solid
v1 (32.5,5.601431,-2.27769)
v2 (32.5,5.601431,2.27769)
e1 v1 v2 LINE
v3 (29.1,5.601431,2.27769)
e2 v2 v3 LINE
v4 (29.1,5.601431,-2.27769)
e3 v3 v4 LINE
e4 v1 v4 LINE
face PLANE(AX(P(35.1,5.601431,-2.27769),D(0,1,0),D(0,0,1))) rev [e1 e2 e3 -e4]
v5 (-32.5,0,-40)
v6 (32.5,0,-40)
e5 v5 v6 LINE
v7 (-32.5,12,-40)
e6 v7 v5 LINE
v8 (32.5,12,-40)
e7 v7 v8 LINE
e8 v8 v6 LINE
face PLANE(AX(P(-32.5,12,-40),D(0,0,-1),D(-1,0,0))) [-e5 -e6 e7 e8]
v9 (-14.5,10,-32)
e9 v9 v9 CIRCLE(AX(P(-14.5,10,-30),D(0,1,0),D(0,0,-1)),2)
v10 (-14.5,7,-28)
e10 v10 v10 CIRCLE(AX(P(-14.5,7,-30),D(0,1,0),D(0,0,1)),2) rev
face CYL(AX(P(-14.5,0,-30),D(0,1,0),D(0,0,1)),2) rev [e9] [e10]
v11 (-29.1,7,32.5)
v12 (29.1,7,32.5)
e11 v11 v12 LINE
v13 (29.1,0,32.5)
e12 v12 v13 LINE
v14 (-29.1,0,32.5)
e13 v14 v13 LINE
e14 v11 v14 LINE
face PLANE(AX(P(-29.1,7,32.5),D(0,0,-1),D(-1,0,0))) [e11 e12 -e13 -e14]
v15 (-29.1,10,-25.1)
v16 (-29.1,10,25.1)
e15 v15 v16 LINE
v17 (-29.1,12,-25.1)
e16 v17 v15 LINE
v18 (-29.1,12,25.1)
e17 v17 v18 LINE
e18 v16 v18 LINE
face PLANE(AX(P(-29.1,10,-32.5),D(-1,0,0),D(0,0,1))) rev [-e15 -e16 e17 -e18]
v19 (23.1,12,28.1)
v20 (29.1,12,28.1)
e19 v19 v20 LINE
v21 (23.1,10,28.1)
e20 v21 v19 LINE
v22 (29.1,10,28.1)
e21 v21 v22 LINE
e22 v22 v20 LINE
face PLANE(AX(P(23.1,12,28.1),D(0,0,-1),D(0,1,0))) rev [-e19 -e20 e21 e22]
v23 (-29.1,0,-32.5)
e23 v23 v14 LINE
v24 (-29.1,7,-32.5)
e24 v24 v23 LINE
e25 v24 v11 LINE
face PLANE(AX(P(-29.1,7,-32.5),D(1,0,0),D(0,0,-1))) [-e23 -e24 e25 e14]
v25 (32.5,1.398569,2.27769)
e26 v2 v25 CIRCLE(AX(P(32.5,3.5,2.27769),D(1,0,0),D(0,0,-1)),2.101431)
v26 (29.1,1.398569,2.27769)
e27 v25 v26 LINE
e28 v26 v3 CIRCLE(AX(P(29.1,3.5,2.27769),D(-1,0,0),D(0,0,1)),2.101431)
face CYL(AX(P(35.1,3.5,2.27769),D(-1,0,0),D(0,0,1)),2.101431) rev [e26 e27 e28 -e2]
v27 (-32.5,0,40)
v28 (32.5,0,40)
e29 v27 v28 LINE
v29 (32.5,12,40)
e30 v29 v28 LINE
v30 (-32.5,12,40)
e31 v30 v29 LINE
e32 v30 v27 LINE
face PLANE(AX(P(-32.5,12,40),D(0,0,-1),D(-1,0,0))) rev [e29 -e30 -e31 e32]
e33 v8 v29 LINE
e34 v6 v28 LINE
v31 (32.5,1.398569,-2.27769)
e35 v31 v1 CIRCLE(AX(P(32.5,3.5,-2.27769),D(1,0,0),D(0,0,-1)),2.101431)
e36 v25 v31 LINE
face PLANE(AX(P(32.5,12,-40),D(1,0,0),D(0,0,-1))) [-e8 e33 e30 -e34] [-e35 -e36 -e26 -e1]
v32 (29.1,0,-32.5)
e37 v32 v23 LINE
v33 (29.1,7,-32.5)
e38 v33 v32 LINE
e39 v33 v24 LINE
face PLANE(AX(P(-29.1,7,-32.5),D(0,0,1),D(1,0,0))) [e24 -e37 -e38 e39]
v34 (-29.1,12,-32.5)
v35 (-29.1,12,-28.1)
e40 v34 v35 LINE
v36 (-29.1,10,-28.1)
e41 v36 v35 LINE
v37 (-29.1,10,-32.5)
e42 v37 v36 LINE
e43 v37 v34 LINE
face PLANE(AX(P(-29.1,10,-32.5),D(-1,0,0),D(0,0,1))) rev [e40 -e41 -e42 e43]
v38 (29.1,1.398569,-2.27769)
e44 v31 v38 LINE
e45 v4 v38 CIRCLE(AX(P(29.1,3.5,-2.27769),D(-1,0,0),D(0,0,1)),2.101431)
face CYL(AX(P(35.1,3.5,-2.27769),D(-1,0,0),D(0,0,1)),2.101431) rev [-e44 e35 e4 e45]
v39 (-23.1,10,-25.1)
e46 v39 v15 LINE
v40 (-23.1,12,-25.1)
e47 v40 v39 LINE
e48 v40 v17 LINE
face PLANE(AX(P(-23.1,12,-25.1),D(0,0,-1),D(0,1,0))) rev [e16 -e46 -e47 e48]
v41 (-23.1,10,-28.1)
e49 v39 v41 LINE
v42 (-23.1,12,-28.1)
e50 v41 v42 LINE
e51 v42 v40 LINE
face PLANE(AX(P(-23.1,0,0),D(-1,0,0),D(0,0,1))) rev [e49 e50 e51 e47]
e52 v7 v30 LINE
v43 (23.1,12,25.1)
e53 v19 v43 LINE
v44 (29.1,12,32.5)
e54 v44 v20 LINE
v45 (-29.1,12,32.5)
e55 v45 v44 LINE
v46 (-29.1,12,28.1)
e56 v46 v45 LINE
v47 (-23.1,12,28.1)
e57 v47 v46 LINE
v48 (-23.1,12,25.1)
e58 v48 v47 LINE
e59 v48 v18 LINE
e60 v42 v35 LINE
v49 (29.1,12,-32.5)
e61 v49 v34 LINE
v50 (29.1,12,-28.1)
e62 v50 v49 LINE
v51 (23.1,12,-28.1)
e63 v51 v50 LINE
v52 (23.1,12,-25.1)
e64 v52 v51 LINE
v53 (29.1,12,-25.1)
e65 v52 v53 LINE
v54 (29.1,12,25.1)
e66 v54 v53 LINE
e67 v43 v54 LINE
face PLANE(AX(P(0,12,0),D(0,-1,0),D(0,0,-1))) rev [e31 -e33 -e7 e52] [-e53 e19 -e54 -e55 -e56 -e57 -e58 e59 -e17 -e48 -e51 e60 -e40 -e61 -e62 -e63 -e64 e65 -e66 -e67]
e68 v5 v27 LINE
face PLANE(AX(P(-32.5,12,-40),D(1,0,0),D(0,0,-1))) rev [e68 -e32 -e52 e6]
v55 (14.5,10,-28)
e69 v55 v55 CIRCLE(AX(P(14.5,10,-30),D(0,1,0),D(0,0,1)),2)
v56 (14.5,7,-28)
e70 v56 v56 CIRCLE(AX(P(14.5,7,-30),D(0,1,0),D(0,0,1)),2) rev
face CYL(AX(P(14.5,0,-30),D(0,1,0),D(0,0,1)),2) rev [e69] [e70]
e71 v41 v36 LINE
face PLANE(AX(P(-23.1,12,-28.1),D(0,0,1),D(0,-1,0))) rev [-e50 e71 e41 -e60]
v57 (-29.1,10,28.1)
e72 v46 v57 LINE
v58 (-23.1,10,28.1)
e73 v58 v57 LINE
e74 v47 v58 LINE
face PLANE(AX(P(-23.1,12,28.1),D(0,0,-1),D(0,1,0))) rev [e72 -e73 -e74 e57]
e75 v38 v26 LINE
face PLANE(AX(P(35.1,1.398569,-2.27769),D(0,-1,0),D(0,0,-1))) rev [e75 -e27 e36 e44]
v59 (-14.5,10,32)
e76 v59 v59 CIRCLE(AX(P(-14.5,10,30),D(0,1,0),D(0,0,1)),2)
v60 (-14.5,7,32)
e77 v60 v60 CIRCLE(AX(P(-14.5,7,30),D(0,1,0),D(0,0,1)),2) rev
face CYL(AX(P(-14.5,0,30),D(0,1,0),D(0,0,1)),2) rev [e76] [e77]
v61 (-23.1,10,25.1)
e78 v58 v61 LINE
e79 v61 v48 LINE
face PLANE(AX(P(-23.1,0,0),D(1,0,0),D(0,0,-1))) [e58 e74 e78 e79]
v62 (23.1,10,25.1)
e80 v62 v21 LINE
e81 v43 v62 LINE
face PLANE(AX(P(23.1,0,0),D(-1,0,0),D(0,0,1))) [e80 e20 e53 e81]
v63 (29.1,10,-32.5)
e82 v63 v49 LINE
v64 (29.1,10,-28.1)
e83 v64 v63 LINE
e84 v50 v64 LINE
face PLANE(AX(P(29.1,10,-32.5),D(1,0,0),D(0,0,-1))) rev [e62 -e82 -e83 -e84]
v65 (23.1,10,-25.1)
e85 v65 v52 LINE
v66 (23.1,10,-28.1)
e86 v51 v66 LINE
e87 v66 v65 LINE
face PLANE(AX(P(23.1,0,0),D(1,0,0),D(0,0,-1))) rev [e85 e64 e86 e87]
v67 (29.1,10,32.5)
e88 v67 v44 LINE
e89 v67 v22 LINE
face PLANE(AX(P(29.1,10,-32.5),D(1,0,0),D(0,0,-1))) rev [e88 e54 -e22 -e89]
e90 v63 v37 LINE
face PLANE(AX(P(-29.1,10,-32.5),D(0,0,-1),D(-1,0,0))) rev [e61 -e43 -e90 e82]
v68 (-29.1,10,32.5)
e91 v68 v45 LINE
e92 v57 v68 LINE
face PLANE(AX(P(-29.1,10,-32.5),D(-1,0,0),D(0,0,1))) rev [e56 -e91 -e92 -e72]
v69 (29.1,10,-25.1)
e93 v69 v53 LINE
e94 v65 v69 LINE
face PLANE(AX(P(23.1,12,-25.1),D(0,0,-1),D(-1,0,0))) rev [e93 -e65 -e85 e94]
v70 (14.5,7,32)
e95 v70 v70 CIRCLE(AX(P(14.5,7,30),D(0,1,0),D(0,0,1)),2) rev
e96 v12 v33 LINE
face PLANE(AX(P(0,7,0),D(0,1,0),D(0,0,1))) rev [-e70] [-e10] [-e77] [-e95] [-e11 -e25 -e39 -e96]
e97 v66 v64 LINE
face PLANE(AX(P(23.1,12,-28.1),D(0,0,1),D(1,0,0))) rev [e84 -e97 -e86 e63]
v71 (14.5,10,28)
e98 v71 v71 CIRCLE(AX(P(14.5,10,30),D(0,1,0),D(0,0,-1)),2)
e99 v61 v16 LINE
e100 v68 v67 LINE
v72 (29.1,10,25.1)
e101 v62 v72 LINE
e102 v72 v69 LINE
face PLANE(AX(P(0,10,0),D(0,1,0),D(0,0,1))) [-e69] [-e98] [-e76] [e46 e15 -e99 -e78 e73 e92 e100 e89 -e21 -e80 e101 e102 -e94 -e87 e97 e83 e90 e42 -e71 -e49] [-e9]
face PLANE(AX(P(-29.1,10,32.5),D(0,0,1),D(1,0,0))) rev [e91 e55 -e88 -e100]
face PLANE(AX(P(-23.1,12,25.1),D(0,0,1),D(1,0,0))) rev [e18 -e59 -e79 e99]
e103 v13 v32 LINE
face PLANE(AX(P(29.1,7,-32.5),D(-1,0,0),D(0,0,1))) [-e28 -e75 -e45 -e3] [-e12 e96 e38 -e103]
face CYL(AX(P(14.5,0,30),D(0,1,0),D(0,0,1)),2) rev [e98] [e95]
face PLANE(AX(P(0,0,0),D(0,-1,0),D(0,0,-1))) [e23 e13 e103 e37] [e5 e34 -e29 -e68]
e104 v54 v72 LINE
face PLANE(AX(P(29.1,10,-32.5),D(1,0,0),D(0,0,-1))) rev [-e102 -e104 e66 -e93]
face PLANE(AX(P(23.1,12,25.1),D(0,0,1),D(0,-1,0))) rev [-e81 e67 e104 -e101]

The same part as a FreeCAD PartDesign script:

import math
import FreeCAD as App
import Part
import Sketcher

V = App.Vector

doc = App.newDocument("Part")
params = doc.addObject("Spreadsheet::Sheet", "Params")
for row, (alias, value) in enumerate([
    ("sketch1_width", "65 mm"),
    ("sketch1_height", "80 mm"),
    ("pad1_length", "12 mm"),
    ("sketch2_height", "65 mm"),
    ("sketch2_width", "58.2 mm"),
    ("pocket1_length", "2 mm"),
    ("sketch3_diameter", "4 mm"),
    ("pocket2_length", "10 mm"),
    ("sketch4_height", "65 mm"),
    ("sketch4_width", "58.2 mm"),
    ("pocket3_length", "7 mm"),
    ("pocket4_length", "6 mm"),
    ("sketch6_width", "2 mm"),
    ("sketch6_height", "3 mm"),
    ("pad2_length", "6 mm"),
    ("sketch7_width", "2 mm"),
    ("sketch7_height", "3 mm"),
    ("pad3_length", "6 mm"),
], start=1):
    params.set(f"A{row}", alias)
    params.set(f"B{row}", "=" + value)
    params.setAlias(f"B{row}", alias)

body = doc.addObject("PartDesign::Body", "Body")

# Sketch on XZ plane
sketch1 = body.newObject("Sketcher::SketchObject", "Sketch")
sketch1.AttachmentSupport = (doc.getObject("XZ_Plane"), [""])
sketch1.MapMode = "FlatFace"
sketch1.addGeometry(Part.LineSegment(V(-32, -40, 0), V(-32, 40, 0)), False)
sketch1.addGeometry(Part.LineSegment(V(-32, 40, 0), V(32, 40, 0)), False)
sketch1.addGeometry(Part.LineSegment(V(32, 40, 0), V(32, -40, 0)), False)
sketch1.addGeometry(Part.LineSegment(V(32, -40, 0), V(-32, -40, 0)), False)
sketch1.addConstraint(Sketcher.Constraint("Coincident", 0, 2, 1, 1))
sketch1.addConstraint(Sketcher.Constraint("Coincident", 1, 2, 2, 1))
sketch1.addConstraint(Sketcher.Constraint("Coincident", 2, 2, 3, 1))
sketch1.addConstraint(Sketcher.Constraint("Coincident", 3, 2, 0, 1))
sketch1.addConstraint(Sketcher.Constraint("Vertical", 0))
sketch1.addConstraint(Sketcher.Constraint("Horizontal", 1))
sketch1.addConstraint(Sketcher.Constraint("Vertical", 2))
sketch1.addConstraint(Sketcher.Constraint("Horizontal", 3))
sketch1.addConstraint(Sketcher.Constraint("Symmetric", 0, 2, 2, 2, -1, 1))
sketch1.addConstraint(Sketcher.Constraint("DistanceX", 1, 1, 1, 2, 65.0))
sketch1.addConstraint(Sketcher.Constraint("DistanceY", 0, 1, 0, 2, 80.0))
sketch1.setExpression("Constraints[9]", "Params.sketch1_width")
sketch1.setExpression("Constraints[10]", "Params.sketch1_height")
pad1 = body.newObject("PartDesign::Pad", "Pad")
pad1.Profile = sketch1
pad1.setExpression("Length", "Params.pad1_length")
pad1.Reversed = True

# Sketch on XZ plane
sketch2 = body.newObject("Sketcher::SketchObject", "Sketch001")
sketch2.AttachmentSupport = (doc.getObject("XZ_Plane"), [""])
sketch2.MapMode = "FlatFace"
sketch2.AttachmentOffset = App.Placement(V(0, 0, -12), App.Rotation())
sketch2.addGeometry(Part.LineSegment(V(-29, -32, 0), V(-29, 32, 0)), False)
sketch2.addGeometry(Part.LineSegment(V(-29, 32, 0), V(29, 32, 0)), False)
sketch2.addGeometry(Part.LineSegment(V(29, 32, 0), V(29, -32, 0)), False)
sketch2.addGeometry(Part.LineSegment(V(29, -32, 0), V(-29, -32, 0)), False)
sketch2.addConstraint(Sketcher.Constraint("Coincident", 0, 2, 1, 1))
sketch2.addConstraint(Sketcher.Constraint("Coincident", 1, 2, 2, 1))
sketch2.addConstraint(Sketcher.Constraint("Coincident", 2, 2, 3, 1))
sketch2.addConstraint(Sketcher.Constraint("Coincident", 3, 2, 0, 1))
sketch2.addConstraint(Sketcher.Constraint("Vertical", 0))
sketch2.addConstraint(Sketcher.Constraint("Horizontal", 1))
sketch2.addConstraint(Sketcher.Constraint("Vertical", 2))
sketch2.addConstraint(Sketcher.Constraint("Horizontal", 3))
sketch2.addConstraint(Sketcher.Constraint("Symmetric", 0, 2, 2, 2, -1, 1))
sketch2.addConstraint(Sketcher.Constraint("DistanceY", 0, 1, 0, 2, 65.0))
sketch2.addConstraint(Sketcher.Constraint("DistanceX", 1, 1, 1, 2, 58.2))
sketch2.setExpression("Constraints[9]", "Params.sketch2_height")
sketch2.setExpression("Constraints[10]", "Params.sketch2_width")
pocket1 = body.newObject("PartDesign::Pocket", "Pocket")
pocket1.Profile = sketch2
pocket1.setExpression("Length", "Params.pocket1_length")
pocket1.Reversed = True

# Sketch on XZ plane
sketch3 = body.newObject("Sketcher::SketchObject", "Sketch002")
sketch3.AttachmentSupport = (doc.getObject("XZ_Plane"), [""])
sketch3.MapMode = "FlatFace"
sketch3.AttachmentOffset = App.Placement(V(0, 0, -10), App.Rotation())
sketch3.addGeometry(Part.Circle(V(14.5, -30, 0), V(0, 0, 1), 2), False)
sketch3.addGeometry(Part.Circle(V(-14.5, -30, 0), V(0, 0, 1), 2), False)
sketch3.addGeometry(Part.Circle(V(-14.5, 30, 0), V(0, 0, 1), 2), False)
sketch3.addGeometry(Part.Circle(V(14.5, 30, 0), V(0, 0, 1), 2), False)
sketch3.addConstraint(Sketcher.Constraint("Equal", 0, 1))
sketch3.addConstraint(Sketcher.Constraint("Equal", 1, 2))
sketch3.addConstraint(Sketcher.Constraint("Equal", 2, 3))
sketch3.addConstraint(Sketcher.Constraint("Symmetric", 0, 3, 2, 3, -1, 1))
sketch3.addConstraint(Sketcher.Constraint("Symmetric", 1, 3, 3, 3, -1, 1))
sketch3.addConstraint(Sketcher.Constraint("Symmetric", 0, 3, 1, 3, -2))
sketch3.addConstraint(Sketcher.Constraint("Diameter", 0, 4.0))
sketch3.addConstraint(Sketcher.Constraint("DistanceY", 0, 3, -1, 1, 30.0))
sketch3.addConstraint(Sketcher.Constraint("DistanceX", 1, 3, 0, 3, 29.0))
sketch3.setExpression("Constraints[6]", "Params.sketch3_diameter")
pocket2 = body.newObject("PartDesign::Pocket", "Pocket001")
pocket2.Profile = sketch3
pocket2.setExpression("Length", "Params.pocket2_length")
pocket2.Reversed = True

# Sketch on XZ plane
sketch4 = body.newObject("Sketcher::SketchObject", "Sketch003")
sketch4.AttachmentSupport = (doc.getObject("XZ_Plane"), [""])
sketch4.MapMode = "FlatFace"
sketch4.addGeometry(Part.LineSegment(V(-29, -32, 0), V(-29, 32, 0)), False)
sketch4.addGeometry(Part.LineSegment(V(-29, 32, 0), V(29, 32, 0)), False)
sketch4.addGeometry(Part.LineSegment(V(29, 32, 0), V(29, -32, 0)), False)
sketch4.addGeometry(Part.LineSegment(V(29, -32, 0), V(-29, -32, 0)), False)
sketch4.addConstraint(Sketcher.Constraint("Coincident", 0, 2, 1, 1))
sketch4.addConstraint(Sketcher.Constraint("Coincident", 1, 2, 2, 1))
sketch4.addConstraint(Sketcher.Constraint("Coincident", 2, 2, 3, 1))
sketch4.addConstraint(Sketcher.Constraint("Coincident", 3, 2, 0, 1))
sketch4.addConstraint(Sketcher.Constraint("Vertical", 0))
sketch4.addConstraint(Sketcher.Constraint("Horizontal", 1))
sketch4.addConstraint(Sketcher.Constraint("Vertical", 2))
sketch4.addConstraint(Sketcher.Constraint("Horizontal", 3))
sketch4.addConstraint(Sketcher.Constraint("Symmetric", 0, 2, 2, 2, -1, 1))
sketch4.addConstraint(Sketcher.Constraint("DistanceY", 0, 1, 0, 2, 65.0))
sketch4.addConstraint(Sketcher.Constraint("DistanceX", 1, 1, 1, 2, 58.2))
sketch4.setExpression("Constraints[9]", "Params.sketch4_height")
sketch4.setExpression("Constraints[10]", "Params.sketch4_width")
pocket3 = body.newObject("PartDesign::Pocket", "Pocket002")
pocket3.Profile = sketch4
pocket3.setExpression("Length", "Params.pocket3_length")

# Sketch on YZ plane
sketch5 = body.newObject("Sketcher::SketchObject", "Sketch004")
sketch5.AttachmentSupport = (doc.getObject("YZ_Plane"), [""])
sketch5.MapMode = "FlatFace"
sketch5.AttachmentOffset = App.Placement(V(0, 0, 29.1), App.Rotation())
sketch5.addGeometry(Part.LineSegment(V(5.6, 2.3, 0), V(5.6, -2.3, 0)), False)
sketch5.addGeometry(Part.ArcOfCircle(Part.Circle(V(3.5, -2.3, 0), V(0, 0, 1), 2.1), math.radians(180), math.radians(360)), False)
sketch5.addGeometry(Part.LineSegment(V(1.4, -2.3, 0), V(1.4, 2.3, 0)), False)
sketch5.addGeometry(Part.ArcOfCircle(Part.Circle(V(3.5, 2.3, 0), V(0, 0, 1), 2.1), math.radians(0), math.radians(180)), False)
sketch5.addConstraint(Sketcher.Constraint("Tangent", 0, 2, 1, 2))
sketch5.addConstraint(Sketcher.Constraint("Tangent", 1, 1, 2, 1))
sketch5.addConstraint(Sketcher.Constraint("Tangent", 2, 2, 3, 2))
sketch5.addConstraint(Sketcher.Constraint("Tangent", 3, 1, 0, 1))
sketch5.addConstraint(Sketcher.Constraint("Vertical", 0))
sketch5.addConstraint(Sketcher.Constraint("Vertical", 2))
sketch5.addConstraint(Sketcher.Constraint("DistanceX", -1, 1, 1, 3, 3.5))
sketch5.addConstraint(Sketcher.Constraint("Radius", 1, 2.101431))
sketch5.addConstraint(Sketcher.Constraint("DistanceY", 0, 2, 0, 1, 4.555381))
sketch5.addConstraint(Sketcher.Constraint("DistanceY", 1, 3, -1, 1, 2.27769))
pocket4 = body.newObject("PartDesign::Pocket", "Pocket003")
pocket4.Profile = sketch5
pocket4.setExpression("Length", "Params.pocket4_length")
pocket4.Reversed = True

# Sketch on YZ plane
sketch6 = body.newObject("Sketcher::SketchObject", "Sketch005")
sketch6.AttachmentSupport = (doc.getObject("YZ_Plane"), [""])
sketch6.MapMode = "FlatFace"
sketch6.AttachmentOffset = App.Placement(V(0, 0, 29.1), App.Rotation())
sketch6.addGeometry(Part.LineSegment(V(12, -28.1, 0), V(10, -28.1, 0)), False)
sketch6.addGeometry(Part.LineSegment(V(10, -28.1, 0), V(10, -25.1, 0)), False)
sketch6.addGeometry(Part.LineSegment(V(10, -25.1, 0), V(12, -25.1, 0)), False)
sketch6.addGeometry(Part.LineSegment(V(12, -25.1, 0), V(12, -28.1, 0)), False)
sketch6.addGeometry(Part.LineSegment(V(12, 25.1, 0), V(10, 25.1, 0)), False)
sketch6.addGeometry(Part.LineSegment(V(10, 25.1, 0), V(10, 28.1, 0)), False)
sketch6.addGeometry(Part.LineSegment(V(10, 28.1, 0), V(12, 28.1, 0)), False)
sketch6.addGeometry(Part.LineSegment(V(12, 28.1, 0), V(12, 25.1, 0)), False)
sketch6.addConstraint(Sketcher.Constraint("Coincident", 0, 2, 1, 1))
sketch6.addConstraint(Sketcher.Constraint("Coincident", 1, 2, 2, 1))
sketch6.addConstraint(Sketcher.Constraint("Coincident", 2, 2, 3, 1))
sketch6.addConstraint(Sketcher.Constraint("Coincident", 3, 2, 0, 1))
sketch6.addConstraint(Sketcher.Constraint("Coincident", 4, 2, 5, 1))
sketch6.addConstraint(Sketcher.Constraint("Coincident", 5, 2, 6, 1))
sketch6.addConstraint(Sketcher.Constraint("Coincident", 6, 2, 7, 1))
sketch6.addConstraint(Sketcher.Constraint("Coincident", 7, 2, 4, 1))
sketch6.addConstraint(Sketcher.Constraint("Horizontal", 0))
sketch6.addConstraint(Sketcher.Constraint("Vertical", 1))
sketch6.addConstraint(Sketcher.Constraint("Horizontal", 2))
sketch6.addConstraint(Sketcher.Constraint("Vertical", 3))
sketch6.addConstraint(Sketcher.Constraint("Horizontal", 4))
sketch6.addConstraint(Sketcher.Constraint("Vertical", 5))
sketch6.addConstraint(Sketcher.Constraint("Horizontal", 6))
sketch6.addConstraint(Sketcher.Constraint("Vertical", 7))
sketch6.addConstraint(Sketcher.Constraint("Symmetric", 1, 2, 4, 2, -1))
sketch6.addConstraint(Sketcher.Constraint("Symmetric", 3, 2, 6, 2, -1))
sketch6.addConstraint(Sketcher.Constraint("DistanceX", 0, 2, 0, 1, 2.0))
sketch6.addConstraint(Sketcher.Constraint("DistanceY", 1, 1, 1, 2, 3.0))
sketch6.addConstraint(Sketcher.Constraint("DistanceX", -1, 1, 0, 2, 10.0))
sketch6.addConstraint(Sketcher.Constraint("DistanceY", 0, 2, -1, 1, 28.1))
sketch6.setExpression("Constraints[18]", "Params.sketch6_width")
sketch6.setExpression("Constraints[19]", "Params.sketch6_height")
pad2 = body.newObject("PartDesign::Pad", "Pad001")
pad2.Profile = sketch6
pad2.setExpression("Length", "Params.pad2_length")
pad2.Reversed = True

# Sketch on YZ plane
sketch7 = body.newObject("Sketcher::SketchObject", "Sketch006")
sketch7.AttachmentSupport = (doc.getObject("YZ_Plane"), [""])
sketch7.MapMode = "FlatFace"
sketch7.AttachmentOffset = App.Placement(V(0, 0, -29.1), App.Rotation())
sketch7.addGeometry(Part.LineSegment(V(12, -25.1, 0), V(10, -25.1, 0)), False)
sketch7.addGeometry(Part.LineSegment(V(10, -25.1, 0), V(10, -28.1, 0)), False)
sketch7.addGeometry(Part.LineSegment(V(10, -28.1, 0), V(12, -28.1, 0)), False)
sketch7.addGeometry(Part.LineSegment(V(12, -28.1, 0), V(12, -25.1, 0)), False)
sketch7.addGeometry(Part.LineSegment(V(12, 28.1, 0), V(10, 28.1, 0)), False)
sketch7.addGeometry(Part.LineSegment(V(10, 28.1, 0), V(10, 25.1, 0)), False)
sketch7.addGeometry(Part.LineSegment(V(10, 25.1, 0), V(12, 25.1, 0)), False)
sketch7.addGeometry(Part.LineSegment(V(12, 25.1, 0), V(12, 28.1, 0)), False)
sketch7.addConstraint(Sketcher.Constraint("Coincident", 0, 2, 1, 1))
sketch7.addConstraint(Sketcher.Constraint("Coincident", 1, 2, 2, 1))
sketch7.addConstraint(Sketcher.Constraint("Coincident", 2, 2, 3, 1))
sketch7.addConstraint(Sketcher.Constraint("Coincident", 3, 2, 0, 1))
sketch7.addConstraint(Sketcher.Constraint("Coincident", 4, 2, 5, 1))
sketch7.addConstraint(Sketcher.Constraint("Coincident", 5, 2, 6, 1))
sketch7.addConstraint(Sketcher.Constraint("Coincident", 6, 2, 7, 1))
sketch7.addConstraint(Sketcher.Constraint("Coincident", 7, 2, 4, 1))
sketch7.addConstraint(Sketcher.Constraint("Horizontal", 0))
sketch7.addConstraint(Sketcher.Constraint("Vertical", 1))
sketch7.addConstraint(Sketcher.Constraint("Horizontal", 2))
sketch7.addConstraint(Sketcher.Constraint("Vertical", 3))
sketch7.addConstraint(Sketcher.Constraint("Horizontal", 4))
sketch7.addConstraint(Sketcher.Constraint("Vertical", 5))
sketch7.addConstraint(Sketcher.Constraint("Horizontal", 6))
sketch7.addConstraint(Sketcher.Constraint("Vertical", 7))
sketch7.addConstraint(Sketcher.Constraint("Symmetric", 1, 2, 4, 2, -1))
sketch7.addConstraint(Sketcher.Constraint("Symmetric", 3, 2, 6, 2, -1))
sketch7.addConstraint(Sketcher.Constraint("DistanceX", 0, 2, 0, 1, 2.0))
sketch7.addConstraint(Sketcher.Constraint("DistanceY", 1, 2, 1, 1, 3.0))
sketch7.addConstraint(Sketcher.Constraint("DistanceX", -1, 1, 0, 2, 10.0))
sketch7.addConstraint(Sketcher.Constraint("DistanceY", 0, 2, -1, 1, 25.1))
sketch7.setExpression("Constraints[18]", "Params.sketch7_width")
sketch7.setExpression("Constraints[19]", "Params.sketch7_height")
pad3 = body.newObject("PartDesign::Pad", "Pad002")
pad3.Profile = sketch7
pad3.setExpression("Length", "Params.pad3_length")

doc.recompute()
